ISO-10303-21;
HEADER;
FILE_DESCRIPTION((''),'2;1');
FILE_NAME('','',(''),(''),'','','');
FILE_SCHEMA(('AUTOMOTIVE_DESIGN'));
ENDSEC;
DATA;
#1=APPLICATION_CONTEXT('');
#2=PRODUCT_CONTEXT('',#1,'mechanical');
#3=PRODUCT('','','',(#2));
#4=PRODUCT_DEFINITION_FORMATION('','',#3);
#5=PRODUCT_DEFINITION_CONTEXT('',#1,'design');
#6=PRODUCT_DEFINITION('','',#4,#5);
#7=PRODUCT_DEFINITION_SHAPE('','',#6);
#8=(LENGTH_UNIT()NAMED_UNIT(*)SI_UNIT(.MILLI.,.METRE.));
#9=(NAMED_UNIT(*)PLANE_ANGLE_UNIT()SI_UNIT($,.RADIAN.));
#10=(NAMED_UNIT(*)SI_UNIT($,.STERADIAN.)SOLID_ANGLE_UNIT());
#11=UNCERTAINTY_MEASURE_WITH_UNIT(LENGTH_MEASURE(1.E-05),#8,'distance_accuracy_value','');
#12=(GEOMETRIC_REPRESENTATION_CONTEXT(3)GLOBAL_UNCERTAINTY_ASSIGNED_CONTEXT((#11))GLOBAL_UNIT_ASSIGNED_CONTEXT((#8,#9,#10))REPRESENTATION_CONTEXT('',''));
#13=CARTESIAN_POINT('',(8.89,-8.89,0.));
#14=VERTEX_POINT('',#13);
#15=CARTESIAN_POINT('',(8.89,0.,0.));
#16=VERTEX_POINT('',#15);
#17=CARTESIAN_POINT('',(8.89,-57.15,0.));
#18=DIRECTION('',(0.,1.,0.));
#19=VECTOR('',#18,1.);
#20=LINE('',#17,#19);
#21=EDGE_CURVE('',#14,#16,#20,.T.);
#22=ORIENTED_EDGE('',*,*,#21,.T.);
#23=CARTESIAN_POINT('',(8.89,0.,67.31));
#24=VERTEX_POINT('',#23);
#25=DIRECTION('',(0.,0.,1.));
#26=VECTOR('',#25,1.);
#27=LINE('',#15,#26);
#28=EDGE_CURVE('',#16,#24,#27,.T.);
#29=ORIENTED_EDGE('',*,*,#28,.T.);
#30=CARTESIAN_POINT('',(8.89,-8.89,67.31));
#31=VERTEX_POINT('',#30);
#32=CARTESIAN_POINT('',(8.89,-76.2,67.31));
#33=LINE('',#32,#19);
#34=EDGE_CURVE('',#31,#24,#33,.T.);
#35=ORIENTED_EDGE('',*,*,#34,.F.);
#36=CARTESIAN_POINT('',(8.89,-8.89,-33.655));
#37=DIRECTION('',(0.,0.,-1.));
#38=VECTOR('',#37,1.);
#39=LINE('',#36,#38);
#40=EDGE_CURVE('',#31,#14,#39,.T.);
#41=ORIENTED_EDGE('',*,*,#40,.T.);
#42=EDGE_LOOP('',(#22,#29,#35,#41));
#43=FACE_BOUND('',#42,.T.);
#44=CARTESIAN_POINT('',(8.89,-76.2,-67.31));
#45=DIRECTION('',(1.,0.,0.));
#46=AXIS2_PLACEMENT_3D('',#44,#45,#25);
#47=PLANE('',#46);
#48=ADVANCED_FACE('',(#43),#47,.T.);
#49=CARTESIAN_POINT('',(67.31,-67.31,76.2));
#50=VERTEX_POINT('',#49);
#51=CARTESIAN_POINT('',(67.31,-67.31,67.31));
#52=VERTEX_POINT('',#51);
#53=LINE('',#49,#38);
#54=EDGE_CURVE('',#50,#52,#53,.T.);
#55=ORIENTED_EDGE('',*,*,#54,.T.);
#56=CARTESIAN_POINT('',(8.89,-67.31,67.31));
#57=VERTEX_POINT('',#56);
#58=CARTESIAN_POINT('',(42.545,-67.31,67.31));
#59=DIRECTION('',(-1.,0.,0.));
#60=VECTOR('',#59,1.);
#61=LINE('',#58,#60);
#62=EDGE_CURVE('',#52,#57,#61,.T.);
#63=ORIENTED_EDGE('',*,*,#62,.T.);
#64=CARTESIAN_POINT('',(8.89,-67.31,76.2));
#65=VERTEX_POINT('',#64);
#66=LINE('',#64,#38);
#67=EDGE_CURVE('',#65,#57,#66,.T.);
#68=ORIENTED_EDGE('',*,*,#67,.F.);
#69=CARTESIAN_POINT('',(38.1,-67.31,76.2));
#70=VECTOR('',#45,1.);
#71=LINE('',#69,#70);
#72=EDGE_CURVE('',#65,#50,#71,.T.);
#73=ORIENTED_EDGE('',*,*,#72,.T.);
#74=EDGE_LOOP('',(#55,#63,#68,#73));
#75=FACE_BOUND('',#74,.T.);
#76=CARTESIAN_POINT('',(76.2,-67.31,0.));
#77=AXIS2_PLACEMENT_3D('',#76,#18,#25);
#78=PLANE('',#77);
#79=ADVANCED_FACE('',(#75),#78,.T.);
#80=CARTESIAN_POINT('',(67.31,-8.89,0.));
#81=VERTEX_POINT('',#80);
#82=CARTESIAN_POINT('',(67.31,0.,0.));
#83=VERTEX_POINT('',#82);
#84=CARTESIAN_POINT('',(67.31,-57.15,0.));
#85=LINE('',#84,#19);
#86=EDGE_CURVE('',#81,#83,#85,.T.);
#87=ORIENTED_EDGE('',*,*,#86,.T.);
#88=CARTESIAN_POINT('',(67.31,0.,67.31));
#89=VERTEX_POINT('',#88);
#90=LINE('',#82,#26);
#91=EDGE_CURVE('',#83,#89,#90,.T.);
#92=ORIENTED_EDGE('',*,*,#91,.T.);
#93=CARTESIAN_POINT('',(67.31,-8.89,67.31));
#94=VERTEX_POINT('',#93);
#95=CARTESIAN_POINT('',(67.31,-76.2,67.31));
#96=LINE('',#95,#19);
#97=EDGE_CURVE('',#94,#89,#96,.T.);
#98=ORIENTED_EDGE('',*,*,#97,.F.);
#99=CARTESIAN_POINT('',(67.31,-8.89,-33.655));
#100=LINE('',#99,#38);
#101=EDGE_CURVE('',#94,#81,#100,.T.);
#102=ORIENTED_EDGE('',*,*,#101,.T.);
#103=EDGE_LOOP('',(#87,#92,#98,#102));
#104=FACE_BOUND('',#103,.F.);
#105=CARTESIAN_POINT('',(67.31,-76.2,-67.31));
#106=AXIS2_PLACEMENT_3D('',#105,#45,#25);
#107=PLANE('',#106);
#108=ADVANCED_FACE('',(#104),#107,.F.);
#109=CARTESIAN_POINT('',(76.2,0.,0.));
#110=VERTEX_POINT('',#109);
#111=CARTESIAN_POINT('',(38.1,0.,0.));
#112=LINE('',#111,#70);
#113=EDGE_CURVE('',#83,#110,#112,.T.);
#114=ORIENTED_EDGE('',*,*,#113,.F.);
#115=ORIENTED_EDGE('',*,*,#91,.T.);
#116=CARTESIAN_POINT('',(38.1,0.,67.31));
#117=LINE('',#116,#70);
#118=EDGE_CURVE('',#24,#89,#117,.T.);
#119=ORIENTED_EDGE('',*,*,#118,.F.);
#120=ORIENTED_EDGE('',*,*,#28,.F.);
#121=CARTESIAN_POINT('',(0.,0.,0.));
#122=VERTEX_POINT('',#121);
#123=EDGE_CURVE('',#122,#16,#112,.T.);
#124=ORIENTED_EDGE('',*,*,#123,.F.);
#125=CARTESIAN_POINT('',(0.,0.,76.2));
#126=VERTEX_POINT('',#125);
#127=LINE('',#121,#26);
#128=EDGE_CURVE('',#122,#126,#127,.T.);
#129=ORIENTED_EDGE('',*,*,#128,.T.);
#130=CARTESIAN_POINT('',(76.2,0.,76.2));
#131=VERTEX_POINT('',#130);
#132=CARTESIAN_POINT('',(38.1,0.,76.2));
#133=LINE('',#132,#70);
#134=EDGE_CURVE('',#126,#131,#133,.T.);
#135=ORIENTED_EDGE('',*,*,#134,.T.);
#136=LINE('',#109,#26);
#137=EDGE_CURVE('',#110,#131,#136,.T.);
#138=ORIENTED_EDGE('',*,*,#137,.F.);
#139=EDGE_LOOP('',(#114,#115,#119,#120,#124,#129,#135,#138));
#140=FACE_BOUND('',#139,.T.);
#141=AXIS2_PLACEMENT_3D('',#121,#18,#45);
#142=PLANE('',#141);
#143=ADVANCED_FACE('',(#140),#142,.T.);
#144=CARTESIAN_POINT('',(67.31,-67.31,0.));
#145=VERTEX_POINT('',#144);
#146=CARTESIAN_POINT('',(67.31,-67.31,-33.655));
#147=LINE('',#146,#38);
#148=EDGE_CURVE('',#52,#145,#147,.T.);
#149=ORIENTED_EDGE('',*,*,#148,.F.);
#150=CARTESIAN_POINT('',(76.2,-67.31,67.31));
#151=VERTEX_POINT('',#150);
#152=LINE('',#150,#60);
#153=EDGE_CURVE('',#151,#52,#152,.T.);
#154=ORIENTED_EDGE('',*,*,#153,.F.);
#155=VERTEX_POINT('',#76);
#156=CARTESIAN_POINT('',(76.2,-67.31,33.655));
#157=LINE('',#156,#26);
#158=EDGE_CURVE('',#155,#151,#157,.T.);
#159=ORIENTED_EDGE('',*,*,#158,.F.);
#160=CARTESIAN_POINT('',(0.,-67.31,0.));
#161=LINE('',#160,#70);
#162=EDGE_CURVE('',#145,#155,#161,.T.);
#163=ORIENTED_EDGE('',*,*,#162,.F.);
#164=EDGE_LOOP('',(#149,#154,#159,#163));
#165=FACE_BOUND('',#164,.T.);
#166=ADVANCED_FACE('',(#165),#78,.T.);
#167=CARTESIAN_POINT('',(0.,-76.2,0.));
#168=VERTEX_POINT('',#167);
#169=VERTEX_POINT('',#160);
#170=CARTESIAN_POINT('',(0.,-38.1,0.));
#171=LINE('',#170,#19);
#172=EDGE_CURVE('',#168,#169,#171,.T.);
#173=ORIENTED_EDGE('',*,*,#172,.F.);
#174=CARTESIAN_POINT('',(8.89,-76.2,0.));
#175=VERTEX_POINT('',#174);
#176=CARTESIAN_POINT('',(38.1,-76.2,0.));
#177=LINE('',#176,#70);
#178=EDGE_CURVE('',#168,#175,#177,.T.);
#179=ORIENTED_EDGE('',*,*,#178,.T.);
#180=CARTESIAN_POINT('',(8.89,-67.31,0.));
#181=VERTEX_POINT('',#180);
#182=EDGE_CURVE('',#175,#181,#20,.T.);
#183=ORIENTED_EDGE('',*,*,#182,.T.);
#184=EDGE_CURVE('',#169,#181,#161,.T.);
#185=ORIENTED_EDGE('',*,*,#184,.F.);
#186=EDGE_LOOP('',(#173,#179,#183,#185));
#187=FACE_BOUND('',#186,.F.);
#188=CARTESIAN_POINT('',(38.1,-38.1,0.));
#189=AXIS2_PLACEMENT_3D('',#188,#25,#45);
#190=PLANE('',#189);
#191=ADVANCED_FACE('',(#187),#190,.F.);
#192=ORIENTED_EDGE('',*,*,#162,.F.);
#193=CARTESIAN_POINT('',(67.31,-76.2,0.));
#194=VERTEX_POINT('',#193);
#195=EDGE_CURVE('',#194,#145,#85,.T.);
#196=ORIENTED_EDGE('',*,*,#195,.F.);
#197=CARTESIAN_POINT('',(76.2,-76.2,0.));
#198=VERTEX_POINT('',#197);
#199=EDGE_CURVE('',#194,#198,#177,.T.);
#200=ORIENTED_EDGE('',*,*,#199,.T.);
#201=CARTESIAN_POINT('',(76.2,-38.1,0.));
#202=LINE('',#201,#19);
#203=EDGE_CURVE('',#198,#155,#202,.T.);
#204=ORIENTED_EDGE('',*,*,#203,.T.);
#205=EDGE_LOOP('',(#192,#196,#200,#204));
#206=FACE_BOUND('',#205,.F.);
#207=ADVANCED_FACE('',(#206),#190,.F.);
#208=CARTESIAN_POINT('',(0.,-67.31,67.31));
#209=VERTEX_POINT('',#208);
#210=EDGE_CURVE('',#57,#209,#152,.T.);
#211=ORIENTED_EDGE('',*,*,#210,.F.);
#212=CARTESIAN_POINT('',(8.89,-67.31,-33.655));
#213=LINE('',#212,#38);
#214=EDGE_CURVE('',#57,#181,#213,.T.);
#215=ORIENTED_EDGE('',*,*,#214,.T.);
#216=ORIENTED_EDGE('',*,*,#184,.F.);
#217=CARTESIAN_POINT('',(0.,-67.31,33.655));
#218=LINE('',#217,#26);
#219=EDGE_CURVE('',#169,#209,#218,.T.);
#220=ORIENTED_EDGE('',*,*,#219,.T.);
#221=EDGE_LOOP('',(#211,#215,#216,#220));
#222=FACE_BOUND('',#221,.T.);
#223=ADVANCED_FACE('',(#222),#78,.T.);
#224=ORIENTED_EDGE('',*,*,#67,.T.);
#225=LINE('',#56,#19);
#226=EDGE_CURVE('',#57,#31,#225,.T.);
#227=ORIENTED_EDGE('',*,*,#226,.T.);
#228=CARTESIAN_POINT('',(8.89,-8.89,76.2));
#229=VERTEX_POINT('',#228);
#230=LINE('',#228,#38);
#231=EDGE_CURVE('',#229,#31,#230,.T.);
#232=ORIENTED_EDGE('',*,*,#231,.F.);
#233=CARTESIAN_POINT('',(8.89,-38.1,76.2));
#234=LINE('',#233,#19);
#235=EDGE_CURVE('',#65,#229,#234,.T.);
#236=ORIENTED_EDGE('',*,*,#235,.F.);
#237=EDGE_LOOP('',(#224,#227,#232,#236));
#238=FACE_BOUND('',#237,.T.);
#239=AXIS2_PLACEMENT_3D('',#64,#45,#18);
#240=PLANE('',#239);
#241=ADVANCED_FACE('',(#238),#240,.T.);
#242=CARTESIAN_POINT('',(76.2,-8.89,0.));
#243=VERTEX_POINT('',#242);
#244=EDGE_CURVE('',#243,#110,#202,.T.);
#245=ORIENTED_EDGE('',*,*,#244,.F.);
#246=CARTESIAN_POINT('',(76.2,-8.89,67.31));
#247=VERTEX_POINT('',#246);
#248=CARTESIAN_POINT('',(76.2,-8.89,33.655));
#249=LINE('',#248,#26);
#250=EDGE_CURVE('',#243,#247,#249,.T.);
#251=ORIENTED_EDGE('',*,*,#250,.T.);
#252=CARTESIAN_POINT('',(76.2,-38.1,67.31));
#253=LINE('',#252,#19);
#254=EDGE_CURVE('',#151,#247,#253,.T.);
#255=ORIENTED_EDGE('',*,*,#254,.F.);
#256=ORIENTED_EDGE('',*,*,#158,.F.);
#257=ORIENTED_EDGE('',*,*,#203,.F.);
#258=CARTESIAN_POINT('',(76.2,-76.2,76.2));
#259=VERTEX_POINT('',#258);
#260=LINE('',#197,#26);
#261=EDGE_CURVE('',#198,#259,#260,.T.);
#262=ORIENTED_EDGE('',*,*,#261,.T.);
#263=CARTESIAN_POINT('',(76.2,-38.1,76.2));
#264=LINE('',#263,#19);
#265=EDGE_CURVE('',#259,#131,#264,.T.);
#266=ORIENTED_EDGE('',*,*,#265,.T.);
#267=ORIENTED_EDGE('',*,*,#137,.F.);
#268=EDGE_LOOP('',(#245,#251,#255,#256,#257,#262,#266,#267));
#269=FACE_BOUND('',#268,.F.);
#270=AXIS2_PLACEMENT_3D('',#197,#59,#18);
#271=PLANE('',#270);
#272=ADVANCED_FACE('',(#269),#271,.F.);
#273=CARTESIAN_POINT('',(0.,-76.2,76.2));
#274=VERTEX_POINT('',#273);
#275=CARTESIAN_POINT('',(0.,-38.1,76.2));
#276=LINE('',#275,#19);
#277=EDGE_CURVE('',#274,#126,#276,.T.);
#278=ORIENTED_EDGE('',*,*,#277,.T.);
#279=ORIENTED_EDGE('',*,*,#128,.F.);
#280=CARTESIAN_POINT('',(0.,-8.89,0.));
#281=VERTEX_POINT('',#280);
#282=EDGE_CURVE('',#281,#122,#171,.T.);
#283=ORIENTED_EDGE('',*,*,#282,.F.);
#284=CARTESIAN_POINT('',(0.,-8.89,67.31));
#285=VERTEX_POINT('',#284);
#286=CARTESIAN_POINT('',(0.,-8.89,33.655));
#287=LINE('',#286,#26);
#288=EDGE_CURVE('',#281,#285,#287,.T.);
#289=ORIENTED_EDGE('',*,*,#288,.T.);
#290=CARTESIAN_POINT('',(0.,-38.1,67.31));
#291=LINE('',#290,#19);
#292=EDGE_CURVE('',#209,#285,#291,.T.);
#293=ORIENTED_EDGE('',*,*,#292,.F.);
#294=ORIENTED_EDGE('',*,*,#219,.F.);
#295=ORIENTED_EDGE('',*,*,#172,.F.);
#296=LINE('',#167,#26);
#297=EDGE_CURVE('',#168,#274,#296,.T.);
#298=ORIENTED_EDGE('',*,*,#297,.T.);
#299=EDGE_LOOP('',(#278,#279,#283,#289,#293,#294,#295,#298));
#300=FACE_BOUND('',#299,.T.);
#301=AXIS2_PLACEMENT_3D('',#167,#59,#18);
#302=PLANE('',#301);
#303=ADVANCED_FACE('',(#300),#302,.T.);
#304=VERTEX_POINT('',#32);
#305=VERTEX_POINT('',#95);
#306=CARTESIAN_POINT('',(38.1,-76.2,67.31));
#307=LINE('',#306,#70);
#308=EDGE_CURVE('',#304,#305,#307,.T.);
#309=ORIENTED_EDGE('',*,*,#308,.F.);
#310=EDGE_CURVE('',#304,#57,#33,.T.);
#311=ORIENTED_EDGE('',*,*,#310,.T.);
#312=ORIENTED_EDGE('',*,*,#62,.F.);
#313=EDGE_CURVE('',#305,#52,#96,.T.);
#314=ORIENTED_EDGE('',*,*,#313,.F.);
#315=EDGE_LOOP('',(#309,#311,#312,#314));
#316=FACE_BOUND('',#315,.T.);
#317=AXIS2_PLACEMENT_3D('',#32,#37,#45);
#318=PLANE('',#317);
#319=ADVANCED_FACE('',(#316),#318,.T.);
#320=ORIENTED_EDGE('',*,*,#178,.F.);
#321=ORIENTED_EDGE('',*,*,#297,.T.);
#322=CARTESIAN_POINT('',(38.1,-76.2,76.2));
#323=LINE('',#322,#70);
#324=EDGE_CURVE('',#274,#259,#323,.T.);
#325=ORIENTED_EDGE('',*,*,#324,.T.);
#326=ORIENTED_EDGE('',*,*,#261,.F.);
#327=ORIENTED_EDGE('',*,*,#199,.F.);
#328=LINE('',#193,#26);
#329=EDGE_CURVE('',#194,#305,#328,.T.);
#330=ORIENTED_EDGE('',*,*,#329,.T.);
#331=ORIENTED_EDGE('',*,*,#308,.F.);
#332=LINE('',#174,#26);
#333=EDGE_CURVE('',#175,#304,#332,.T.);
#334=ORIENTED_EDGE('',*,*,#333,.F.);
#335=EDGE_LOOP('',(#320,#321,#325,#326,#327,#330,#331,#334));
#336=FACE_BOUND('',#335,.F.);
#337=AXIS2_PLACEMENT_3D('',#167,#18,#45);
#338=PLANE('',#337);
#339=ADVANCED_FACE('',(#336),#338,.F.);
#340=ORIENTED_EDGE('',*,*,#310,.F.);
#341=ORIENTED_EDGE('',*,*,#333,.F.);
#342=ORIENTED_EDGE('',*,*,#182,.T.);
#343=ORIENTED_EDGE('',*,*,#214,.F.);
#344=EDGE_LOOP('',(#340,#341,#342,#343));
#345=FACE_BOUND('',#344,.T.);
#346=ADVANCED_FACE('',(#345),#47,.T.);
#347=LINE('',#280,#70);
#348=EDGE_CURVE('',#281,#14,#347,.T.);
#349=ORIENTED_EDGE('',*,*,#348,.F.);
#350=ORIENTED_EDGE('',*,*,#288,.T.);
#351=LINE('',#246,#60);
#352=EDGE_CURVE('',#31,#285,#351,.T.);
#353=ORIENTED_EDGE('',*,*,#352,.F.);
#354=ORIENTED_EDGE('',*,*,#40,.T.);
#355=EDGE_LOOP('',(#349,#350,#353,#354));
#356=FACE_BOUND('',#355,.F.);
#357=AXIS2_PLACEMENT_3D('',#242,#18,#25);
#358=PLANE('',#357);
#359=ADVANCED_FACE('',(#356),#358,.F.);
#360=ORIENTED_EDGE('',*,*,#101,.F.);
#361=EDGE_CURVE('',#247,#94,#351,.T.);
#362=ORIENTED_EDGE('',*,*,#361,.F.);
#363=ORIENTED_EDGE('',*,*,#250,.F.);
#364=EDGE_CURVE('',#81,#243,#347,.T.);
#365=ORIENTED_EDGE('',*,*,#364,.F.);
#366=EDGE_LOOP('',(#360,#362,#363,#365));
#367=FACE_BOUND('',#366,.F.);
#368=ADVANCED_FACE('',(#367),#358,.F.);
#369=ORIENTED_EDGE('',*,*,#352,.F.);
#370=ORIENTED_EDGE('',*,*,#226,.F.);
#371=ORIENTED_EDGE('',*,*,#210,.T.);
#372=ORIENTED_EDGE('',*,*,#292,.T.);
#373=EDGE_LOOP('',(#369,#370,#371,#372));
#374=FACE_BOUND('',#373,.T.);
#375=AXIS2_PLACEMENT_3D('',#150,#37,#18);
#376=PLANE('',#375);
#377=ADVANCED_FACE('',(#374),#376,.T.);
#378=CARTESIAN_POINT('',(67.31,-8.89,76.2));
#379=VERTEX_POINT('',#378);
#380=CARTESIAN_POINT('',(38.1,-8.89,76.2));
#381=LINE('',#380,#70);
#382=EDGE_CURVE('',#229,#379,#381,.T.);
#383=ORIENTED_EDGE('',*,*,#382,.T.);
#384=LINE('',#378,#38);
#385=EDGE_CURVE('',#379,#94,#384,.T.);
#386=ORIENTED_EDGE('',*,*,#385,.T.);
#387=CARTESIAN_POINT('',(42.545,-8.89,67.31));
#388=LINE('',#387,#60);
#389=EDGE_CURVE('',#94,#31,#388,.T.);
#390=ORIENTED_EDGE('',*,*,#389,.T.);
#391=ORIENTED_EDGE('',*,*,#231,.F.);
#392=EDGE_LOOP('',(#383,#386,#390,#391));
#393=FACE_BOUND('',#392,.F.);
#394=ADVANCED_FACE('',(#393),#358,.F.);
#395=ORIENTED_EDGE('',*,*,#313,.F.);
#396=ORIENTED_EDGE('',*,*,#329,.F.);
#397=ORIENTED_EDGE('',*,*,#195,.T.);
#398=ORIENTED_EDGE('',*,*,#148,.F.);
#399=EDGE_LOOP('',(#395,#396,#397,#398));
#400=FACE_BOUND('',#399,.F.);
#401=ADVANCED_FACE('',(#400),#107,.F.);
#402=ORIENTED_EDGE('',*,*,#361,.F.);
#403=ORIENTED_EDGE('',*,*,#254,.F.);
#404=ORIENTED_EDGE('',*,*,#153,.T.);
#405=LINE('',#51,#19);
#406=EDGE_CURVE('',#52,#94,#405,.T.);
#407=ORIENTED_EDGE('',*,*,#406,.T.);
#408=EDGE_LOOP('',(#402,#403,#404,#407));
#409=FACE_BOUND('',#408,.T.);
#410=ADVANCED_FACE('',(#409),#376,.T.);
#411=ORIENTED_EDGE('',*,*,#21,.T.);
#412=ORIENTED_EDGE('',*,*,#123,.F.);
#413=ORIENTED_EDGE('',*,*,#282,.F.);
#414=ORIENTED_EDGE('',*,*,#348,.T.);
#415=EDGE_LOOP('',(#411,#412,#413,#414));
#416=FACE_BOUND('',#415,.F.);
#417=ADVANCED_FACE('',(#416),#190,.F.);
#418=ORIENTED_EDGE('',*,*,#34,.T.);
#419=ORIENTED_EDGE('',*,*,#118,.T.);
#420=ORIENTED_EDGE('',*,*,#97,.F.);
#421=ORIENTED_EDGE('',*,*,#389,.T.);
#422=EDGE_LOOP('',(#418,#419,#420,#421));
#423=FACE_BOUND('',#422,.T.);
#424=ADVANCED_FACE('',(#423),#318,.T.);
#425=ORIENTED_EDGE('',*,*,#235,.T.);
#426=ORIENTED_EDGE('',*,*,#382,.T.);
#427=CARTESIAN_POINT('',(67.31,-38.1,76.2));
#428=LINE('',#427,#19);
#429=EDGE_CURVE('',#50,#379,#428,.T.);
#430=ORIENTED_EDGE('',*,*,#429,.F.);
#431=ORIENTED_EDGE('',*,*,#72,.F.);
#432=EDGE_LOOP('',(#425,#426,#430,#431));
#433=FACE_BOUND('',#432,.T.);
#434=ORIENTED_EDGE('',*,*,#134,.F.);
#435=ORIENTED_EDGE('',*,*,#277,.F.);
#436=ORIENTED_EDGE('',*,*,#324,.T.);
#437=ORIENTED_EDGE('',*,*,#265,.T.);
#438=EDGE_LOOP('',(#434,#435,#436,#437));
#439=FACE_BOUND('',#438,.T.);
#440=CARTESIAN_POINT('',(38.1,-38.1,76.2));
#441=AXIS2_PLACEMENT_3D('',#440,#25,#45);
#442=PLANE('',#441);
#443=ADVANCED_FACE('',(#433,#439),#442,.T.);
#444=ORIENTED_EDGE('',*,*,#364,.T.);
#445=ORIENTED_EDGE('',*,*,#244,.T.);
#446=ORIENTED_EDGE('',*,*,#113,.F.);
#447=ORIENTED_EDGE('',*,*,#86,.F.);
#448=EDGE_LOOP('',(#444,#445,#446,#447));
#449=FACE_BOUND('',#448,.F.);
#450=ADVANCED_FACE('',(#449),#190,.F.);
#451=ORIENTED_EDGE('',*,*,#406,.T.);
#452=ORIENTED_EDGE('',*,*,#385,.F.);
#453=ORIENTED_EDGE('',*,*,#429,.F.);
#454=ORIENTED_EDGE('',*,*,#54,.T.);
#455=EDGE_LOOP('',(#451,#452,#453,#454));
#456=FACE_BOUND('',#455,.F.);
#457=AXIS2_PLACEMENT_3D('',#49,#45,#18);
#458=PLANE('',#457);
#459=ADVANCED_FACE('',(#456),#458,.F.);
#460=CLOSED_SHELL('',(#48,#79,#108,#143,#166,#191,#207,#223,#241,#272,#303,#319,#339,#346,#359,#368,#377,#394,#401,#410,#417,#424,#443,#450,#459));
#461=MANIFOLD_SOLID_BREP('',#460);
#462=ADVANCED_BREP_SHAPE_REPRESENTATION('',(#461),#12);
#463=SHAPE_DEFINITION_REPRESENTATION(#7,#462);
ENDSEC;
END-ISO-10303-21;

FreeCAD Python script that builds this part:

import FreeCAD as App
import Part
import Sketcher
from FreeCAD import Vector
Q = App.Units.Quantity

doc = App.newDocument("Part")
body = doc.addObject("PartDesign::Body", "Body")

# Sketch on XY plane
sketch1 = body.newObject("Sketcher::SketchObject", "Sketch")
sketch1.AttachmentSupport = (doc.getObject("XY_Plane"), [""])
sketch1.MapMode = "FlatFace"
sketch1.addGeometry([
    Part.LineSegment(Vector(0, 0, 0), Vector(0, -76, 0)),
    Part.LineSegment(Vector(0, -76, 0), Vector(76, -76, 0)),
    Part.LineSegment(Vector(76, -76, 0), Vector(76, 0, 0)),
    Part.LineSegment(Vector(76, 0, 0), Vector(0, 0, 0)),
], False)
sketch1.addConstraint([
    Sketcher.Constraint("Coincident", 0, 2, 1, 1),
    Sketcher.Constraint("Coincident", 1, 2, 2, 1),
    Sketcher.Constraint("Coincident", 2, 2, 3, 1),
    Sketcher.Constraint("Coincident", 3, 2, 0, 1),
    Sketcher.Constraint("Vertical", 0),
    Sketcher.Constraint("Horizontal", 1),
    Sketcher.Constraint("Vertical", 2),
    Sketcher.Constraint("Horizontal", 3),
    Sketcher.Constraint("Coincident", 3, 2, -1, 1),
    Sketcher.Constraint("Equal", 3, 0),
    Sketcher.Constraint("DistanceX", 1, 1, 1, 2, Q("3 in")),
])
pad1 = body.newObject("PartDesign::Pad", "Pad")
pad1.Profile = sketch1
pad1.Length = Q("3 in")

# Sketch on XY plane
sketch2 = body.newObject("Sketcher::SketchObject", "Sketch001")
sketch2.AttachmentSupport = (doc.getObject("XY_Plane"), [""])
sketch2.MapMode = "FlatFace"
sketch2.AttachmentOffset = App.Placement(Vector(0, 0, 3 * 25.4), App.Rotation())
sketch2.addGeometry([
    Part.LineSegment(Vector(9, -9, 0), Vector(9, -67, 0)),
    Part.LineSegment(Vector(9, -67, 0), Vector(67, -67, 0)),
    Part.LineSegment(Vector(67, -67, 0), Vector(67, -9, 0)),
    Part.LineSegment(Vector(67, -9, 0), Vector(9, -9, 0)),
], False)
sketch2.addConstraint([
    Sketcher.Constraint("Coincident", 0, 2, 1, 1),
    Sketcher.Constraint("Coincident", 1, 2, 2, 1),
    Sketcher.Constraint("Coincident", 2, 2, 3, 1),
    Sketcher.Constraint("Coincident", 3, 2, 0, 1),
    Sketcher.Constraint("Vertical", 0),
    Sketcher.Constraint("Horizontal", 1),
    Sketcher.Constraint("Vertical", 2),
    Sketcher.Constraint("Horizontal", 3),
    Sketcher.Constraint("Equal", 3, 0),
    Sketcher.Constraint("DistanceX", 1, 1, 1, 2, Q("2.3 in")),
    Sketcher.Constraint("DistanceX", -1, 1, 0, 2, Q("0.35 in")),
    Sketcher.Constraint("DistanceY", 0, 2, -1, 1, Q("2.65 in")),
])
pocket1 = body.newObject("PartDesign::Pocket", "Pocket")
pocket1.Profile = sketch2
pocket1.Length = Q("3 in")

# Sketch on YZ plane
sketch3 = body.newObject("Sketcher::SketchObject", "Sketch002")
sketch3.AttachmentSupport = (doc.getObject("YZ_Plane"), [""])
sketch3.MapMode = "FlatFace"
sketch3.AttachmentOffset = App.Placement(Vector(0, 0, 3 * 25.4), App.Rotation())
sketch3.addGeometry([
    Part.LineSegment(Vector(-67, 67, 0), Vector(-67, 0, 0)),
    Part.LineSegment(Vector(-67, 0, 0), Vector(-9, 0, 0)),
    Part.LineSegment(Vector(-9, 0, 0), Vector(-9, 67, 0)),
    Part.LineSegment(Vector(-9, 67, 0), Vector(-67, 67, 0)),
], False)
sketch3.addConstraint([
    Sketcher.Constraint("Coincident", 0, 2, 1, 1),
    Sketcher.Constraint("Coincident", 1, 2, 2, 1),
    Sketcher.Constraint("Coincident", 2, 2, 3, 1),
    Sketcher.Constraint("Coincident", 3, 2, 0, 1),
    Sketcher.Constraint("Vertical", 0),
    Sketcher.Constraint("Horizontal", 1),
    Sketcher.Constraint("Vertical", 2),
    Sketcher.Constraint("Horizontal", 3),
    Sketcher.Constraint("PointOnObject", 0, 2, -1),
    Sketcher.Constraint("DistanceX", 1, 1, 1, 2, Q("2.3 in")),
    Sketcher.Constraint("DistanceY", 0, 2, 0, 1, Q("2.65 in")),
    Sketcher.Constraint("DistanceX", 0, 2, -1, 1, Q("2.65 in")),
])
pocket2 = body.newObject("PartDesign::Pocket", "Pocket001")
pocket2.Profile = sketch3
pocket2.Length = Q("3 in")

# Sketch on XZ plane
sketch4 = body.newObject("Sketcher::SketchObject", "Sketch003")
sketch4.AttachmentSupport = (doc.getObject("XZ_Plane"), [""])
sketch4.MapMode = "FlatFace"
sketch4.AttachmentOffset = App.Placement(Vector(0, 0, 3 * 25.4), App.Rotation())
sketch4.addGeometry([
    Part.LineSegment(Vector(9, 67, 0), Vector(9, -67, 0)),
    Part.LineSegment(Vector(9, -67, 0), Vector(67, -67, 0)),
    Part.LineSegment(Vector(67, -67, 0), Vector(67, 67, 0)),
    Part.LineSegment(Vector(67, 67, 0), Vector(9, 67, 0)),
], False)
sketch4.addConstraint([
    Sketcher.Constraint("Coincident", 0, 2, 1, 1),
    Sketcher.Constraint("Coincident", 1, 2, 2, 1),
    Sketcher.Constraint("Coincident", 2, 2, 3, 1),
    Sketcher.Constraint("Coincident", 3, 2, 0, 1),
    Sketcher.Constraint("Vertical", 0),
    Sketcher.Constraint("Horizontal", 1),
    Sketcher.Constraint("Vertical", 2),
    Sketcher.Constraint("Horizontal", 3),
    Sketcher.Constraint("DistanceX", 1, 1, 1, 2, Q("2.3 in")),
    Sketcher.Constraint("DistanceY", 0, 2, 0, 1, Q("5.3 in")),
    Sketcher.Constraint("DistanceX", -1, 1, 0, 2, Q("0.35 in")),
    Sketcher.Constraint("DistanceY", 0, 2, -1, 1, Q("2.65 in")),
])
pocket3 = body.newObject("PartDesign::Pocket", "Pocket002")
pocket3.Profile = sketch4
pocket3.Length = Q("3 in")

doc.recompute()
